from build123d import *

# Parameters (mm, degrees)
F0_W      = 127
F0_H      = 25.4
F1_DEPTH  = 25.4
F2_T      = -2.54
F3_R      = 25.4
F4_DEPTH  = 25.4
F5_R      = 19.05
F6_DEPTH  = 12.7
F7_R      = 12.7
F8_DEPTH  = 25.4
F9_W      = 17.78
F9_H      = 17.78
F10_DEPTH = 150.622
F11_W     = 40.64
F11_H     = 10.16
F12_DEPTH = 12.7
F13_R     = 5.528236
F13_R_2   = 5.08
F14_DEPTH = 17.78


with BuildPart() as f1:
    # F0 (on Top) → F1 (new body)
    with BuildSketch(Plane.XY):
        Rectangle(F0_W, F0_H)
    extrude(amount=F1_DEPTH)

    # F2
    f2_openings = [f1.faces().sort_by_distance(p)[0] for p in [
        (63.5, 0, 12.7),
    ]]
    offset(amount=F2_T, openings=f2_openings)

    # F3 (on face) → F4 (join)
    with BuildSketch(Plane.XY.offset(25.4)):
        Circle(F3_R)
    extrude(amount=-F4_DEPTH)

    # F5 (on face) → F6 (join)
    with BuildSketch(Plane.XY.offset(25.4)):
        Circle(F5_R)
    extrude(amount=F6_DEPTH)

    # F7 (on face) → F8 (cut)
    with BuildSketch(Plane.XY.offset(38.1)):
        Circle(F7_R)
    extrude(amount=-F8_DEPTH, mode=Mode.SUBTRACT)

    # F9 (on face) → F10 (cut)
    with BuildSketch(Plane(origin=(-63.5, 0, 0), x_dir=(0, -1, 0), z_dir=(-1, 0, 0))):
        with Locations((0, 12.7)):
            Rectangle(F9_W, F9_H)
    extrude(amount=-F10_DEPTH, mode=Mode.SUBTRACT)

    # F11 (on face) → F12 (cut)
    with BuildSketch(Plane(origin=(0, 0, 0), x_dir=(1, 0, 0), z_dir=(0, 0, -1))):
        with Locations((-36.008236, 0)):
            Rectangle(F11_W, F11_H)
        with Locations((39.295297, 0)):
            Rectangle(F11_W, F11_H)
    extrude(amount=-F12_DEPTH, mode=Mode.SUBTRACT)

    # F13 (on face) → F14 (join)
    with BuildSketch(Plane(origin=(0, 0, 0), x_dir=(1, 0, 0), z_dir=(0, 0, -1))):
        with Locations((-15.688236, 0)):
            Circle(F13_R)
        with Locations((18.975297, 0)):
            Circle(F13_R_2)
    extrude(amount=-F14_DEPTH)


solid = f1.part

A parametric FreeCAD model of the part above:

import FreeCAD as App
import Part
import Sketcher

V = App.Vector
Q = App.Units.Quantity


def faces_at(feature, points):
    """Names of the faces that lie closest to the given points."""
    faces = feature.Shape.Faces
    near = lambda p: min(range(len(faces)), key=lambda i: faces[i].distToShape(Part.Vertex(*p))[0])
    return sorted({f"Face{near(p) + 1}" for p in points})

doc = App.newDocument("Part")
body = doc.addObject("PartDesign::Body", "Body")

# Sketch on XY plane
sketch1 = body.newObject("Sketcher::SketchObject", "Sketch")
sketch1.AttachmentSupport = (doc.getObject("XY_Plane"), [""])
sketch1.MapMode = "FlatFace"
sketch1.addGeometry(Part.LineSegment(V(-64, 13, 0), V(-64, -13, 0)), False)
sketch1.addGeometry(Part.LineSegment(V(-64, -13, 0), V(64, -13, 0)), False)
sketch1.addGeometry(Part.LineSegment(V(64, -13, 0), V(64, 13, 0)), False)
sketch1.addGeometry(Part.LineSegment(V(64, 13, 0), V(-64, 13, 0)), False)
sketch1.addConstraint(Sketcher.Constraint("Coincident", 0, 2, 1, 1))
sketch1.addConstraint(Sketcher.Constraint("Coincident", 1, 2, 2, 1))
sketch1.addConstraint(Sketcher.Constraint("Coincident", 2, 2, 3, 1))
sketch1.addConstraint(Sketcher.Constraint("Coincident", 3, 2, 0, 1))
sketch1.addConstraint(Sketcher.Constraint("Vertical", 0))
sketch1.addConstraint(Sketcher.Constraint("Horizontal", 1))
sketch1.addConstraint(Sketcher.Constraint("Vertical", 2))
sketch1.addConstraint(Sketcher.Constraint("Horizontal", 3))
sketch1.addConstraint(Sketcher.Constraint("Symmetric", 0, 2, 2, 2, -1, 1))
sketch1.addConstraint(Sketcher.Constraint("DistanceX", 1, 1, 1, 2, Q("5 in")))
sketch1.addConstraint(Sketcher.Constraint("DistanceY", 0, 2, 0, 1, Q("1 in")))
pad1 = body.newObject("PartDesign::Pad", "Pad")
pad1.Profile = sketch1
pad1.Length = Q("1 in")
doc.recompute()

thickness = body.newObject("PartDesign::Thickness", "Thickness")
thickness.Base = (pad1, faces_at(pad1, [(63.5, 0, 12.7)]))
thickness.Value = Q("0.1 in")
thickness.Reversed = True
thickness.Join = "Arc"

# Sketch on XY plane
sketch2 = body.newObject("Sketcher::SketchObject", "Sketch001")
sketch2.AttachmentSupport = (doc.getObject("XY_Plane"), [""])
sketch2.MapMode = "FlatFace"
sketch2.AttachmentOffset = App.Placement(V(0, 0, 1 * 25.4), App.Rotation())
sketch2.addGeometry(Part.Circle(V(0, 0, 0), V(0, 0, 1), 25), False)
sketch2.addConstraint(Sketcher.Constraint("Coincident", 0, 3, -1, 1))
sketch2.addConstraint(Sketcher.Constraint("Diameter", 0, Q("2 in")))
pad2 = body.newObject("PartDesign::Pad", "Pad001")
pad2.Profile = sketch2
pad2.Length = Q("1 in")
pad2.Reversed = True

# Sketch on XY plane
sketch3 = body.newObject("Sketcher::SketchObject", "Sketch002")
sketch3.AttachmentSupport = (doc.getObject("XY_Plane"), [""])
sketch3.MapMode = "FlatFace"
sketch3.AttachmentOffset = App.Placement(V(0, 0, 1 * 25.4), App.Rotation())
sketch3.addGeometry(Part.Circle(V(0, 0, 0), V(0, 0, 1), 19), False)
sketch3.addConstraint(Sketcher.Constraint("Coincident", 0, 3, -1, 1))
sketch3.addConstraint(Sketcher.Constraint("Diameter", 0, Q("1.5 in")))
pad3 = body.newObject("PartDesign::Pad", "Pad002")
pad3.Profile = sketch3
pad3.Length = Q("0.5 in")

# Sketch on XY plane
sketch4 = body.newObject("Sketcher::SketchObject", "Sketch003")
sketch4.AttachmentSupport = (doc.getObject("XY_Plane"), [""])
sketch4.MapMode = "FlatFace"
sketch4.AttachmentOffset = App.Placement(V(0, 0, 1.5 * 25.4), App.Rotation())
sketch4.addGeometry(Part.Circle(V(0, 0, 0), V(0, 0, 1), 13), False)
sketch4.addConstraint(Sketcher.Constraint("Coincident", 0, 3, -1, 1))
sketch4.addConstraint(Sketcher.Constraint("Diameter", 0, Q("1 in")))
pocket1 = body.newObject("PartDesign::Pocket", "Pocket")
pocket1.Profile = sketch4
pocket1.Length = Q("1 in")

# Sketch on YZ plane
sketch5 = body.newObject("Sketcher::SketchObject", "Sketch004")
sketch5.AttachmentSupport = (doc.getObject("YZ_Plane"), [""])
sketch5.MapMode = "FlatFace"
sketch5.AttachmentOffset = App.Placement(V(0, 0, -2.5 * 25.4), App.Rotation())
sketch5.addGeometry(Part.LineSegment(V(9, 22, 0), V(9, 4, 0)), False)
sketch5.addGeometry(Part.LineSegment(V(9, 4, 0), V(-9, 4, 0)), False)
sketch5.addGeometry(Part.LineSegment(V(-9, 4, 0), V(-9, 22, 0)), False)
sketch5.addGeometry(Part.LineSegment(V(-9, 22, 0), V(9, 22, 0)), False)
sketch5.addConstraint(Sketcher.Constraint("Coincident", 0, 2, 1, 1))
sketch5.addConstraint(Sketcher.Constraint("Coincident", 1, 2, 2, 1))
sketch5.addConstraint(Sketcher.Constraint("Coincident", 2, 2, 3, 1))
sketch5.addConstraint(Sketcher.Constraint("Coincident", 3, 2, 0, 1))
sketch5.addConstraint(Sketcher.Constraint("Vertical", 0))
sketch5.addConstraint(Sketcher.Constraint("Horizontal", 1))
sketch5.addConstraint(Sketcher.Constraint("Vertical", 2))
sketch5.addConstraint(Sketcher.Constraint("Horizontal", 3))
sketch5.addConstraint(Sketcher.Constraint("Equal", 3, 0))
sketch5.addConstraint(Sketcher.Constraint("DistanceX", 1, 2, 1, 1, Q("0.7 in")))
sketch5.addConstraint(Sketcher.Constraint("DistanceX", -1, 1, 0, 2, Q("0.35 in")))
sketch5.addConstraint(Sketcher.Constraint("DistanceY", -1, 1, 0, 2, Q("0.15 in")))
pocket2 = body.newObject("PartDesign::Pocket", "Pocket001")
pocket2.Profile = sketch5
pocket2.Length = Q("5.93 in")
pocket2.Reversed = True

# Sketch on XY plane
sketch6 = body.newObject("Sketcher::SketchObject", "Sketch005")
sketch6.AttachmentSupport = (doc.getObject("XY_Plane"), [""])
sketch6.MapMode = "FlatFace"
sketch6.addGeometry(Part.LineSegment(V(-56, -5, 0), V(-56, 5, 0)), False)
sketch6.addGeometry(Part.LineSegment(V(-56, 5, 0), V(-16, 5, 0)), False)
sketch6.addGeometry(Part.LineSegment(V(-16, 5, 0), V(-16, -5, 0)), False)
sketch6.addGeometry(Part.LineSegment(V(-16, -5, 0), V(-56, -5, 0)), False)
sketch6.addGeometry(Part.LineSegment(V(19, -5, 0), V(19, 5, 0)), False)
sketch6.addGeometry(Part.LineSegment(V(19, 5, 0), V(60, 5, 0)), False)
sketch6.addGeometry(Part.LineSegment(V(60, 5, 0), V(60, -5, 0)), False)
sketch6.addGeometry(Part.LineSegment(V(60, -5, 0), V(19, -5, 0)), False)
sketch6.addConstraint(Sketcher.Constraint("Coincident", 0, 2, 1, 1))
sketch6.addConstraint(Sketcher.Constraint("Coincident", 1, 2, 2, 1))
sketch6.addConstraint(Sketcher.Constraint("Coincident", 2, 2, 3, 1))
sketch6.addConstraint(Sketcher.Constraint("Coincident", 3, 2, 0, 1))
sketch6.addConstraint(Sketcher.Constraint("Coincident", 4, 2, 5, 1))
sketch6.addConstraint(Sketcher.Constraint("Coincident", 5, 2, 6, 1))
sketch6.addConstraint(Sketcher.Constraint("Coincident", 6, 2, 7, 1))
sketch6.addConstraint(Sketcher.Constraint("Coincident", 7, 2, 4, 1))
sketch6.addConstraint(Sketcher.Constraint("Vertical", 0))
sketch6.addConstraint(Sketcher.Constraint("Horizontal", 1))
sketch6.addConstraint(Sketcher.Constraint("Vertical", 2))
sketch6.addConstraint(Sketcher.Constraint("Horizontal", 3))
sketch6.addConstraint(Sketcher.Constraint("Vertical", 4))
sketch6.addConstraint(Sketcher.Constraint("Horizontal", 5))
sketch6.addConstraint(Sketcher.Constraint("Vertical", 6))
sketch6.addConstraint(Sketcher.Constraint("Horizontal", 7))
sketch6.addConstraint(Sketcher.Constraint("Horizontal", 1, 2, 4, 2))
sketch6.addConstraint(Sketcher.Constraint("Horizontal", 3, 2, 6, 2))
sketch6.addConstraint(Sketcher.Constraint("Equal", 3, 5))
sketch6.addConstraint(Sketcher.Constraint("DistanceX", 1, 1, 1, 2, Q("1.6 in")))
sketch6.addConstraint(Sketcher.Constraint("DistanceY", 0, 1, 0, 2, Q("0.4 in")))
sketch6.addConstraint(Sketcher.Constraint("DistanceY", -1, 1, 0, 2, Q("0.2 in")))
sketch6.addConstraint(Sketcher.Constraint("DistanceX", 0, 2, -1, 1, Q("56.328236 mm")))
sketch6.addConstraint(Sketcher.Constraint("DistanceX", -1, 1, 4, 2, Q("18.975297 mm")))
pocket3 = body.newObject("PartDesign::Pocket", "Pocket002")
pocket3.Profile = sketch6
pocket3.Length = Q("0.5 in")
pocket3.Reversed = True

# Sketch on XY plane
sketch7 = body.newObject("Sketcher::SketchObject", "Sketch006")
sketch7.AttachmentSupport = (doc.getObject("XY_Plane"), [""])
sketch7.MapMode = "FlatFace"
sketch7.addGeometry(Part.Circle(V(-16, 0, 0), V(0, 0, 1), 6), False)
sketch7.addGeometry(Part.Circle(V(19, 0, 0), V(0, 0, 1), 5), False)
sketch7.addConstraint(Sketcher.Constraint("PointOnObject", 0, 3, -1))
sketch7.addConstraint(Sketcher.Constraint("PointOnObject", 1, 3, -1))
sketch7.addConstraint(Sketcher.Constraint("Diameter", 1, Q("0.4 in")))
sketch7.addConstraint(Sketcher.Constraint("Diameter", 0, Q("11.056472 mm")))
sketch7.addConstraint(Sketcher.Constraint("DistanceX", 0, 3, -1, 1, Q("15.688236 mm")))
sketch7.addConstraint(Sketcher.Constraint("DistanceX", -1, 1, 1, 3, Q("18.975297 mm")))
pad4 = body.newObject("PartDesign::Pad", "Pad003")
pad4.Profile = sketch7
pad4.Length = Q("0.7 in")

doc.recompute()
